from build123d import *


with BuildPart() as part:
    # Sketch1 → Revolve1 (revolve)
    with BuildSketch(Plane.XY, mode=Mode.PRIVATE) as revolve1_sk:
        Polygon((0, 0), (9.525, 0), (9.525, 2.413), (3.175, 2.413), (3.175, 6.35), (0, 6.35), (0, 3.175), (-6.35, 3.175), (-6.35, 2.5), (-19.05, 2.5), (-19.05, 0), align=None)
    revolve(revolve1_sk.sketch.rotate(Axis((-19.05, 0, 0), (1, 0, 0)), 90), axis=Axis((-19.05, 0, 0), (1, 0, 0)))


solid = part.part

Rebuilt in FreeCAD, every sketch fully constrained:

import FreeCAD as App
import Part
import Sketcher

V = App.Vector
Q = App.Units.Quantity


def add_polygon(sketch, points):
    """Adds a closed chain of lines whose ends are joined by coincident constraints."""
    first, n = sketch.GeometryCount, len(points)
    for a, b in zip(points, points[1:] + points[:1]):
        sketch.addGeometry(Part.LineSegment(App.Vector(*a, 0), App.Vector(*b, 0)), False)
    for i in range(n):
        sketch.addConstraint(Sketcher.Constraint("Coincident", first + i, 2, first + (i + 1) % n, 1))

doc = App.newDocument("Part")
params = doc.addObject("Spreadsheet::Sheet", "Params")
for row, (alias, value) in enumerate([
    ("sketch1_width", "0.5 in"),
    ("sketch1_width2", "0.25 in"),
    ("sketch1_width3", "0.125 in"),
    ("sketch1_height", "0.095 in"),
    ("sketch1_height2", "0.155 in"),
    ("revolution_angle", "360 deg"),
], start=1):
    params.set(f"A{row}", alias)
    params.set(f"B{row}", "=" + value)
    params.setAlias(f"B{row}", alias)

body = doc.addObject("PartDesign::Body", "Body")

# Sketch on XY plane
sketch1 = body.newObject("Sketcher::SketchObject", "Sketch")
sketch1.AttachmentSupport = (doc.getObject("XY_Plane"), [""])
sketch1.MapMode = "FlatFace"
add_polygon(sketch1, [(9.525, 0), (9.525, 2.413), (3.175, 2.413), (3.175, 6.35), (0, 6.35), (0, 3.175), (-6.35, 3.175), (-6.35, 2.5), (-19.05, 2.5), (-19.05, 0)])  # lines 0-9
sketch1.addConstraint([
    Sketcher.Constraint("Vertical", 0),
    Sketcher.Constraint("Horizontal", 1),
    Sketcher.Constraint("Vertical", 2),
    Sketcher.Constraint("Horizontal", 3),
    Sketcher.Constraint("Vertical", 4),
    Sketcher.Constraint("Horizontal", 5),
    Sketcher.Constraint("Vertical", 6),
    Sketcher.Constraint("Horizontal", 7),
    Sketcher.Constraint("Vertical", 8),
    Sketcher.Constraint("Horizontal", 9),
    Sketcher.Constraint("PointOnObject", 3, 2, -2),
    Sketcher.Constraint("PointOnObject", 8, 2, -1),
    Sketcher.Constraint("Equal", 1, 5),
    Sketcher.Constraint("Equal", 3, 4),
    Sketcher.Constraint("DistanceX", 7, 2, 7, 1, Q("0.5 in")),
    Sketcher.Constraint("DistanceX", 1, 2, 1, 1, Q("0.25 in")),
    Sketcher.Constraint("DistanceX", 3, 2, 3, 1, Q("0.125 in")),
    Sketcher.Constraint("DistanceY", 0, 1, 0, 2, Q("0.095 in")),
    Sketcher.Constraint("DistanceY", 2, 1, 2, 2, Q("0.155 in")),
    Sketcher.Constraint("DistanceY", 6, 2, 6, 1, 0.675),
])
sketch1.setExpression("Constraints[24]", "Params.sketch1_width")
sketch1.setExpression("Constraints[25]", "Params.sketch1_width2")
sketch1.setExpression("Constraints[26]", "Params.sketch1_width3")
sketch1.setExpression("Constraints[27]", "Params.sketch1_height")
sketch1.setExpression("Constraints[28]", "Params.sketch1_height2")
revolution = body.newObject("PartDesign::Revolution", "Revolution")
revolution.Profile = sketch1
revolution.ReferenceAxis = (sketch1, ["H_Axis"])
revolution.setExpression("Angle", "Params.revolution_angle")

doc.recompute()
